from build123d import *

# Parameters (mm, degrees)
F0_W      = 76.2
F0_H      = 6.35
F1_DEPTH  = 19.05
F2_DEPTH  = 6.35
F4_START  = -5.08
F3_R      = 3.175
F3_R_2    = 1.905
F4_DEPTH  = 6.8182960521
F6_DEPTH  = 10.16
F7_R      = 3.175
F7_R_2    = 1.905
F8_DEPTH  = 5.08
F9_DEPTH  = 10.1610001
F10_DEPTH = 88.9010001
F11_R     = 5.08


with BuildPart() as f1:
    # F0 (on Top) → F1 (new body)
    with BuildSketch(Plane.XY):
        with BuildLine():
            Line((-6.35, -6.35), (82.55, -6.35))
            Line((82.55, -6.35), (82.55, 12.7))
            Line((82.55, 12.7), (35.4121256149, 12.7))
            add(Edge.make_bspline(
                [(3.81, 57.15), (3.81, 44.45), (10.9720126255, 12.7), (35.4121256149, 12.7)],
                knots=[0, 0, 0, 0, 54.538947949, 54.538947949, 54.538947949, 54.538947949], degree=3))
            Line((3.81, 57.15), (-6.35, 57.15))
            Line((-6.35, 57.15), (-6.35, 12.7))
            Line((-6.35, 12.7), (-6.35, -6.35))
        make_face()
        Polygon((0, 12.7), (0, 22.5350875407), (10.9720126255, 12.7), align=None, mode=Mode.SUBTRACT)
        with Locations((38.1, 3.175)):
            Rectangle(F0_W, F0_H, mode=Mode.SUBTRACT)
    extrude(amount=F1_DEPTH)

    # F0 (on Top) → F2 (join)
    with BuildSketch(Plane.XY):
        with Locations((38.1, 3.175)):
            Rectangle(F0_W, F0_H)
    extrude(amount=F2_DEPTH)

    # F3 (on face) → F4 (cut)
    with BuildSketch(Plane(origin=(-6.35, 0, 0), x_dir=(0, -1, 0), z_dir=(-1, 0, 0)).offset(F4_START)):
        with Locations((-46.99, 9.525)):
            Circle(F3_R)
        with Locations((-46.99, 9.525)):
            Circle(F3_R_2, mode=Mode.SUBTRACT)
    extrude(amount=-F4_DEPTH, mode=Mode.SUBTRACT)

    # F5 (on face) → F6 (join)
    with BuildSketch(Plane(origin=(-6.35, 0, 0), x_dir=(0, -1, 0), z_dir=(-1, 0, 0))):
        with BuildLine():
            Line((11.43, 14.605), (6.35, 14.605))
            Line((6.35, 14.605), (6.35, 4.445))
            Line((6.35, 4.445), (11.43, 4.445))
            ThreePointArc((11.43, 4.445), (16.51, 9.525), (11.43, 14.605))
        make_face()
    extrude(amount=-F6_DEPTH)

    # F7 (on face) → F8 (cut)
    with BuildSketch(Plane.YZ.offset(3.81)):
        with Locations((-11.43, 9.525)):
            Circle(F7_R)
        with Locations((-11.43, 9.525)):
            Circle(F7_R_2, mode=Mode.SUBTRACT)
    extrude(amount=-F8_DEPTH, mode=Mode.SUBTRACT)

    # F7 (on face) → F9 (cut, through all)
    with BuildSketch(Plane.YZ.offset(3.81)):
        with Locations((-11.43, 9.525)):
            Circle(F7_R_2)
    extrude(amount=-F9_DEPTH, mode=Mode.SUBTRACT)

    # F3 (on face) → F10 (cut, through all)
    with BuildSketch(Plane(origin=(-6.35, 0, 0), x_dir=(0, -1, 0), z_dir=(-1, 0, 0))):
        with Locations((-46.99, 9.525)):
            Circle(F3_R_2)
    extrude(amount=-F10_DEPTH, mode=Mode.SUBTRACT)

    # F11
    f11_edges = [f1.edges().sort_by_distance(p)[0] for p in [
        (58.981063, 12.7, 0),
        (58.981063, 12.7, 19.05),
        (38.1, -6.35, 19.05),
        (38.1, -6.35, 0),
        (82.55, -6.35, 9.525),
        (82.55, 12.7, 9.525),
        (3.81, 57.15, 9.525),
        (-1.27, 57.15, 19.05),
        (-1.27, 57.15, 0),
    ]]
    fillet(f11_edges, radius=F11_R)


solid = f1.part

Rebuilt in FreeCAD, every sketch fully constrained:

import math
import FreeCAD as App
import Part
import Sketcher
Q = App.Units.Quantity


def edges_at(feature, points):
    """Names of the edges that pass closest to the given points."""
    edges = feature.Shape.Edges
    near = lambda p: min(range(len(edges)), key=lambda i: edges[i].distToShape(Part.Vertex(*p))[0])
    return sorted({f"Edge{near(p) + 1}" for p in points})


def add_polygon(sketch, points):
    """Adds a closed chain of lines whose ends are joined by coincident constraints."""
    first, n = sketch.GeometryCount, len(points)
    for a, b in zip(points, points[1:] + points[:1]):
        sketch.addGeometry(Part.LineSegment(App.Vector(*a, 0), App.Vector(*b, 0)), False)
    for i in range(n):
        sketch.addConstraint(Sketcher.Constraint("Coincident", first + i, 2, first + (i + 1) % n, 1))

doc = App.newDocument("Part")
body = doc.addObject("PartDesign::Body", "Body")

# Sketch on XY plane
sketch1 = body.newObject("Sketcher::SketchObject", "Sketch")
sketch1.AttachmentSupport = (doc.getObject("XY_Plane"), [""])
sketch1.MapMode = "FlatFace"
sketch1.addGeometry(Part.LineSegment(App.Vector(-6.35, -6.35, 0), App.Vector(82.55, -6.35, 0)), False)  # 0
sketch1.addGeometry(Part.LineSegment(App.Vector(82.55, -6.35, 0), App.Vector(82.55, 12.7, 0)), False)  # 1
sketch1.addGeometry(Part.LineSegment(App.Vector(82.55, 12.7, 0), App.Vector(35.412126, 12.7, 0)), False)  # 2
sketch1.addGeometry(Part.BSplineCurve([App.Vector(3.81, 57.15, 0), App.Vector(3.81, 44.45, 0), App.Vector(10.972013, 12.7, 0), App.Vector(35.412126, 12.7, 0)], [4, 4], [0, 54.538947949], False, 3, [1, 1, 1, 1], False), False)  # 3
sketch1.addGeometry(Part.LineSegment(App.Vector(3.81, 57.15, 0), App.Vector(-6.35, 57.15, 0)), False)  # 4
sketch1.addGeometry(Part.LineSegment(App.Vector(-6.35, 57.15, 0), App.Vector(-6.35, -6.35, 0)), False)  # 5
add_polygon(sketch1, [(76.2, 0), (0, 0), (0, 6.35), (76.2, 6.35)])  # lines 6-9
add_polygon(sketch1, [(10.972013, 12.7), (0, 12.7), (0, 22.535088)])  # lines 10-12
sketch1.addConstraint(Sketcher.Constraint("Block", 3))
sketch1.addConstraint(Sketcher.Constraint("Coincident", 0, 2, 1, 1))
sketch1.addConstraint(Sketcher.Constraint("Coincident", 1, 2, 2, 1))
sketch1.addConstraint(Sketcher.Constraint("Coincident", 2, 2, 3, 2))
sketch1.addConstraint(Sketcher.Constraint("Coincident", 3, 1, 4, 1))
sketch1.addConstraint(Sketcher.Constraint("Coincident", 4, 2, 5, 1))
sketch1.addConstraint(Sketcher.Constraint("Coincident", 5, 2, 0, 1))
sketch1.addConstraint(Sketcher.Constraint("Horizontal", 0))
sketch1.addConstraint(Sketcher.Constraint("Vertical", 1))
sketch1.addConstraint(Sketcher.Constraint("Horizontal", 2))
sketch1.addConstraint(Sketcher.Constraint("Horizontal", 4))
sketch1.addConstraint(Sketcher.Constraint("Vertical", 5))
sketch1.addConstraint(Sketcher.Constraint("Horizontal", 6))
sketch1.addConstraint(Sketcher.Constraint("Vertical", 7))
sketch1.addConstraint(Sketcher.Constraint("Horizontal", 8))
sketch1.addConstraint(Sketcher.Constraint("Vertical", 9))
sketch1.addConstraint(Sketcher.Constraint("Horizontal", 10))
sketch1.addConstraint(Sketcher.Constraint("Vertical", 11))
sketch1.addConstraint(Sketcher.Constraint("Coincident", 6, 2, -1, 1))
sketch1.addConstraint(Sketcher.Constraint("PointOnObject", 10, 2, -2))
sketch1.addConstraint(Sketcher.Constraint("Horizontal", 2, 2, 10, 2))
sketch1.addConstraint(Sketcher.Constraint("DistanceX", 6, 2, 6, 1, Q("3 in")))
sketch1.addConstraint(Sketcher.Constraint("DistanceX", 0, 1, 0, 2, Q("3.5 in")))
sketch1.addConstraint(Sketcher.Constraint("DistanceX", 4, 2, 4, 1, Q("0.4 in")))
sketch1.addConstraint(Sketcher.Constraint("DistanceY", 5, 2, 5, 1, Q("2.5 in")))
sketch1.addConstraint(Sketcher.Constraint("DistanceY", 7, 2, 4, 2, Q("2 in")))
sketch1.addConstraint(Sketcher.Constraint("Distance", 12, 14.734789))
sketch1.addConstraint(Sketcher.Constraint("DistanceX", 10, 2, 10, 1, 10.972013))
pad1 = body.newObject("PartDesign::Pad", "Pad")
pad1.Profile = sketch1
pad1.Length = Q("0.75 in")

# Sketch on XY plane
sketch2 = body.newObject("Sketcher::SketchObject", "Sketch001")
sketch2.AttachmentSupport = (doc.getObject("XY_Plane"), [""])
sketch2.MapMode = "FlatFace"
add_polygon(sketch2, [(0, 6.35), (0, 0), (76.2, 0), (76.2, 6.35)])  # lines 0-3
sketch2.addConstraint(Sketcher.Constraint("Vertical", 0))
sketch2.addConstraint(Sketcher.Constraint("Horizontal", 1))
sketch2.addConstraint(Sketcher.Constraint("Vertical", 2))
sketch2.addConstraint(Sketcher.Constraint("Horizontal", 3))
sketch2.addConstraint(Sketcher.Constraint("Coincident", 0, 2, -1, 1))
sketch2.addConstraint(Sketcher.Constraint("DistanceX", 1, 1, 1, 2, Q("3 in")))
sketch2.addConstraint(Sketcher.Constraint("DistanceY", 0, 2, 0, 1, Q("0.25 in")))
pad2 = body.newObject("PartDesign::Pad", "Pad001")
pad2.Profile = sketch2
pad2.Length = Q("0.25 in")

# Sketch on YZ plane
sketch3 = body.newObject("Sketcher::SketchObject", "Sketch002")
sketch3.AttachmentSupport = (doc.getObject("YZ_Plane"), [""])
sketch3.MapMode = "FlatFace"
sketch3.AttachmentOffset = App.Placement(App.Vector(0, 0, -0.05 * 25.4), App.Rotation())
sketch3.addGeometry(Part.Circle(App.Vector(46.99, 9.525, 0), App.Vector(0, 0, 1), 3.175), False)
sketch3.addGeometry(Part.Circle(App.Vector(46.99, 9.525, 0), App.Vector(0, 0, 1), 1.905), False)
sketch3.addConstraint(Sketcher.Constraint("Coincident", 1, 3, 0, 3))
sketch3.addConstraint(Sketcher.Constraint("Diameter", 0, Q("0.25 in")))
sketch3.addConstraint(Sketcher.Constraint("Diameter", 1, Q("0.15 in")))
sketch3.addConstraint(Sketcher.Constraint("DistanceX", -1, 1, 0, 3, Q("1.85 in")))
sketch3.addConstraint(Sketcher.Constraint("DistanceY", -1, 1, 0, 3, Q("0.375 in")))
pocket1 = body.newObject("PartDesign::Pocket", "Pocket")
pocket1.Profile = sketch3
pocket1.Length = 6.818296
pocket1.Reversed = True

# Sketch on YZ plane
sketch4 = body.newObject("Sketcher::SketchObject", "Sketch003")
sketch4.AttachmentSupport = (doc.getObject("YZ_Plane"), [""])
sketch4.MapMode = "FlatFace"
sketch4.AttachmentOffset = App.Placement(App.Vector(0, 0, -0.25 * 25.4), App.Rotation())
sketch4.addGeometry(Part.LineSegment(App.Vector(-11.43, 14.605, 0), App.Vector(-6.35, 14.605, 0)), False)
sketch4.addGeometry(Part.LineSegment(App.Vector(-6.35, 14.605, 0), App.Vector(-6.35, 4.445, 0)), False)
sketch4.addGeometry(Part.LineSegment(App.Vector(-6.35, 4.445, 0), App.Vector(-11.43, 4.445, 0)), False)
sketch4.addGeometry(Part.ArcOfCircle(Part.Circle(App.Vector(-11.43, 9.525, 0), App.Vector(0, 0, 1), 5.08), math.radians(90), math.radians(270)), False)
sketch4.addConstraint(Sketcher.Constraint("Coincident", 0, 2, 1, 1))
sketch4.addConstraint(Sketcher.Constraint("Coincident", 1, 2, 2, 1))
sketch4.addConstraint(Sketcher.Constraint("Tangent", 2, 2, 3, 2))
sketch4.addConstraint(Sketcher.Constraint("Tangent", 3, 1, 0, 1))
sketch4.addConstraint(Sketcher.Constraint("Horizontal", 0))
sketch4.addConstraint(Sketcher.Constraint("Vertical", 1))
sketch4.addConstraint(Sketcher.Constraint("Horizontal", 2))
sketch4.addConstraint(Sketcher.Constraint("Radius", 3, Q("0.2 in")))
sketch4.addConstraint(Sketcher.Constraint("DistanceX", 0, 1, 0, 2, Q("0.2 in")))
sketch4.addConstraint(Sketcher.Constraint("DistanceX", 3, 3, -1, 1, Q("0.45 in")))
sketch4.addConstraint(Sketcher.Constraint("DistanceY", -1, 1, 3, 3, Q("0.375 in")))
pad3 = body.newObject("PartDesign::Pad", "Pad002")
pad3.Profile = sketch4
pad3.Length = Q("0.4 in")

# Sketch on YZ plane
sketch5 = body.newObject("Sketcher::SketchObject", "Sketch004")
sketch5.AttachmentSupport = (doc.getObject("YZ_Plane"), [""])
sketch5.MapMode = "FlatFace"
sketch5.AttachmentOffset = App.Placement(App.Vector(0, 0, 0.15 * 25.4), App.Rotation())
sketch5.addGeometry(Part.Circle(App.Vector(-11.43, 9.525, 0), App.Vector(0, 0, 1), 3.175), False)
sketch5.addGeometry(Part.Circle(App.Vector(-11.43, 9.525, 0), App.Vector(0, 0, 1), 1.905), False)
sketch5.addConstraint(Sketcher.Constraint("Coincident", 1, 3, 0, 3))
sketch5.addConstraint(Sketcher.Constraint("Diameter", 0, Q("0.25 in")))
sketch5.addConstraint(Sketcher.Constraint("Diameter", 1, Q("0.15 in")))
sketch5.addConstraint(Sketcher.Constraint("DistanceX", 0, 3, -1, 1, Q("0.45 in")))
sketch5.addConstraint(Sketcher.Constraint("DistanceY", -1, 1, 0, 3, Q("0.375 in")))
pocket2 = body.newObject("PartDesign::Pocket", "Pocket001")
pocket2.Profile = sketch5
pocket2.Length = Q("0.2 in")

# Sketch on YZ plane
sketch6 = body.newObject("Sketcher::SketchObject", "Sketch005")
sketch6.AttachmentSupport = (doc.getObject("YZ_Plane"), [""])
sketch6.MapMode = "FlatFace"
sketch6.AttachmentOffset = App.Placement(App.Vector(0, 0, 0.15 * 25.4), App.Rotation())
sketch6.addGeometry(Part.Circle(App.Vector(-11.43, 9.525, 0), App.Vector(0, 0, 1), 1.905), False)
sketch6.addConstraint(Sketcher.Constraint("Diameter", 0, Q("0.15 in")))
sketch6.addConstraint(Sketcher.Constraint("DistanceX", 0, 3, -1, 1, Q("0.45 in")))
sketch6.addConstraint(Sketcher.Constraint("DistanceY", -1, 1, 0, 3, Q("0.375 in")))
pocket3 = body.newObject("PartDesign::Pocket", "Pocket002")
pocket3.Profile = sketch6
pocket3.Type = "ThroughAll"

# Sketch on YZ plane
sketch7 = body.newObject("Sketcher::SketchObject", "Sketch006")
sketch7.AttachmentSupport = (doc.getObject("YZ_Plane"), [""])
sketch7.MapMode = "FlatFace"
sketch7.AttachmentOffset = App.Placement(App.Vector(0, 0, -0.25 * 25.4), App.Rotation())
sketch7.addGeometry(Part.Circle(App.Vector(46.99, 9.525, 0), App.Vector(0, 0, 1), 1.905), False)
sketch7.addConstraint(Sketcher.Constraint("Diameter", 0, Q("0.15 in")))
sketch7.addConstraint(Sketcher.Constraint("DistanceX", -1, 1, 0, 3, Q("1.85 in")))
sketch7.addConstraint(Sketcher.Constraint("DistanceY", -1, 1, 0, 3, Q("0.375 in")))
pocket4 = body.newObject("PartDesign::Pocket", "Pocket003")
pocket4.Profile = sketch7
pocket4.Type = "ThroughAll"
pocket4.Reversed = True
doc.recompute()

fillet = body.newObject("PartDesign::Fillet", "Fillet")
fillet.Base = (pocket4, edges_at(pocket4, [
    (58.981, 12.7, 0),
    (58.981, 12.7, 19.05),
    (38.1, -6.35, 19.05),
    (38.1, -6.35, 0),
    (82.55, -6.35, 9.525),
    (82.55, 12.7, 9.525),
    (3.81, 57.15, 9.525),
    (-1.27, 57.15, 19.05),
    (-1.27, 57.15, 0),
]))
fillet.Radius = Q("0.2 in")

doc.recompute()
